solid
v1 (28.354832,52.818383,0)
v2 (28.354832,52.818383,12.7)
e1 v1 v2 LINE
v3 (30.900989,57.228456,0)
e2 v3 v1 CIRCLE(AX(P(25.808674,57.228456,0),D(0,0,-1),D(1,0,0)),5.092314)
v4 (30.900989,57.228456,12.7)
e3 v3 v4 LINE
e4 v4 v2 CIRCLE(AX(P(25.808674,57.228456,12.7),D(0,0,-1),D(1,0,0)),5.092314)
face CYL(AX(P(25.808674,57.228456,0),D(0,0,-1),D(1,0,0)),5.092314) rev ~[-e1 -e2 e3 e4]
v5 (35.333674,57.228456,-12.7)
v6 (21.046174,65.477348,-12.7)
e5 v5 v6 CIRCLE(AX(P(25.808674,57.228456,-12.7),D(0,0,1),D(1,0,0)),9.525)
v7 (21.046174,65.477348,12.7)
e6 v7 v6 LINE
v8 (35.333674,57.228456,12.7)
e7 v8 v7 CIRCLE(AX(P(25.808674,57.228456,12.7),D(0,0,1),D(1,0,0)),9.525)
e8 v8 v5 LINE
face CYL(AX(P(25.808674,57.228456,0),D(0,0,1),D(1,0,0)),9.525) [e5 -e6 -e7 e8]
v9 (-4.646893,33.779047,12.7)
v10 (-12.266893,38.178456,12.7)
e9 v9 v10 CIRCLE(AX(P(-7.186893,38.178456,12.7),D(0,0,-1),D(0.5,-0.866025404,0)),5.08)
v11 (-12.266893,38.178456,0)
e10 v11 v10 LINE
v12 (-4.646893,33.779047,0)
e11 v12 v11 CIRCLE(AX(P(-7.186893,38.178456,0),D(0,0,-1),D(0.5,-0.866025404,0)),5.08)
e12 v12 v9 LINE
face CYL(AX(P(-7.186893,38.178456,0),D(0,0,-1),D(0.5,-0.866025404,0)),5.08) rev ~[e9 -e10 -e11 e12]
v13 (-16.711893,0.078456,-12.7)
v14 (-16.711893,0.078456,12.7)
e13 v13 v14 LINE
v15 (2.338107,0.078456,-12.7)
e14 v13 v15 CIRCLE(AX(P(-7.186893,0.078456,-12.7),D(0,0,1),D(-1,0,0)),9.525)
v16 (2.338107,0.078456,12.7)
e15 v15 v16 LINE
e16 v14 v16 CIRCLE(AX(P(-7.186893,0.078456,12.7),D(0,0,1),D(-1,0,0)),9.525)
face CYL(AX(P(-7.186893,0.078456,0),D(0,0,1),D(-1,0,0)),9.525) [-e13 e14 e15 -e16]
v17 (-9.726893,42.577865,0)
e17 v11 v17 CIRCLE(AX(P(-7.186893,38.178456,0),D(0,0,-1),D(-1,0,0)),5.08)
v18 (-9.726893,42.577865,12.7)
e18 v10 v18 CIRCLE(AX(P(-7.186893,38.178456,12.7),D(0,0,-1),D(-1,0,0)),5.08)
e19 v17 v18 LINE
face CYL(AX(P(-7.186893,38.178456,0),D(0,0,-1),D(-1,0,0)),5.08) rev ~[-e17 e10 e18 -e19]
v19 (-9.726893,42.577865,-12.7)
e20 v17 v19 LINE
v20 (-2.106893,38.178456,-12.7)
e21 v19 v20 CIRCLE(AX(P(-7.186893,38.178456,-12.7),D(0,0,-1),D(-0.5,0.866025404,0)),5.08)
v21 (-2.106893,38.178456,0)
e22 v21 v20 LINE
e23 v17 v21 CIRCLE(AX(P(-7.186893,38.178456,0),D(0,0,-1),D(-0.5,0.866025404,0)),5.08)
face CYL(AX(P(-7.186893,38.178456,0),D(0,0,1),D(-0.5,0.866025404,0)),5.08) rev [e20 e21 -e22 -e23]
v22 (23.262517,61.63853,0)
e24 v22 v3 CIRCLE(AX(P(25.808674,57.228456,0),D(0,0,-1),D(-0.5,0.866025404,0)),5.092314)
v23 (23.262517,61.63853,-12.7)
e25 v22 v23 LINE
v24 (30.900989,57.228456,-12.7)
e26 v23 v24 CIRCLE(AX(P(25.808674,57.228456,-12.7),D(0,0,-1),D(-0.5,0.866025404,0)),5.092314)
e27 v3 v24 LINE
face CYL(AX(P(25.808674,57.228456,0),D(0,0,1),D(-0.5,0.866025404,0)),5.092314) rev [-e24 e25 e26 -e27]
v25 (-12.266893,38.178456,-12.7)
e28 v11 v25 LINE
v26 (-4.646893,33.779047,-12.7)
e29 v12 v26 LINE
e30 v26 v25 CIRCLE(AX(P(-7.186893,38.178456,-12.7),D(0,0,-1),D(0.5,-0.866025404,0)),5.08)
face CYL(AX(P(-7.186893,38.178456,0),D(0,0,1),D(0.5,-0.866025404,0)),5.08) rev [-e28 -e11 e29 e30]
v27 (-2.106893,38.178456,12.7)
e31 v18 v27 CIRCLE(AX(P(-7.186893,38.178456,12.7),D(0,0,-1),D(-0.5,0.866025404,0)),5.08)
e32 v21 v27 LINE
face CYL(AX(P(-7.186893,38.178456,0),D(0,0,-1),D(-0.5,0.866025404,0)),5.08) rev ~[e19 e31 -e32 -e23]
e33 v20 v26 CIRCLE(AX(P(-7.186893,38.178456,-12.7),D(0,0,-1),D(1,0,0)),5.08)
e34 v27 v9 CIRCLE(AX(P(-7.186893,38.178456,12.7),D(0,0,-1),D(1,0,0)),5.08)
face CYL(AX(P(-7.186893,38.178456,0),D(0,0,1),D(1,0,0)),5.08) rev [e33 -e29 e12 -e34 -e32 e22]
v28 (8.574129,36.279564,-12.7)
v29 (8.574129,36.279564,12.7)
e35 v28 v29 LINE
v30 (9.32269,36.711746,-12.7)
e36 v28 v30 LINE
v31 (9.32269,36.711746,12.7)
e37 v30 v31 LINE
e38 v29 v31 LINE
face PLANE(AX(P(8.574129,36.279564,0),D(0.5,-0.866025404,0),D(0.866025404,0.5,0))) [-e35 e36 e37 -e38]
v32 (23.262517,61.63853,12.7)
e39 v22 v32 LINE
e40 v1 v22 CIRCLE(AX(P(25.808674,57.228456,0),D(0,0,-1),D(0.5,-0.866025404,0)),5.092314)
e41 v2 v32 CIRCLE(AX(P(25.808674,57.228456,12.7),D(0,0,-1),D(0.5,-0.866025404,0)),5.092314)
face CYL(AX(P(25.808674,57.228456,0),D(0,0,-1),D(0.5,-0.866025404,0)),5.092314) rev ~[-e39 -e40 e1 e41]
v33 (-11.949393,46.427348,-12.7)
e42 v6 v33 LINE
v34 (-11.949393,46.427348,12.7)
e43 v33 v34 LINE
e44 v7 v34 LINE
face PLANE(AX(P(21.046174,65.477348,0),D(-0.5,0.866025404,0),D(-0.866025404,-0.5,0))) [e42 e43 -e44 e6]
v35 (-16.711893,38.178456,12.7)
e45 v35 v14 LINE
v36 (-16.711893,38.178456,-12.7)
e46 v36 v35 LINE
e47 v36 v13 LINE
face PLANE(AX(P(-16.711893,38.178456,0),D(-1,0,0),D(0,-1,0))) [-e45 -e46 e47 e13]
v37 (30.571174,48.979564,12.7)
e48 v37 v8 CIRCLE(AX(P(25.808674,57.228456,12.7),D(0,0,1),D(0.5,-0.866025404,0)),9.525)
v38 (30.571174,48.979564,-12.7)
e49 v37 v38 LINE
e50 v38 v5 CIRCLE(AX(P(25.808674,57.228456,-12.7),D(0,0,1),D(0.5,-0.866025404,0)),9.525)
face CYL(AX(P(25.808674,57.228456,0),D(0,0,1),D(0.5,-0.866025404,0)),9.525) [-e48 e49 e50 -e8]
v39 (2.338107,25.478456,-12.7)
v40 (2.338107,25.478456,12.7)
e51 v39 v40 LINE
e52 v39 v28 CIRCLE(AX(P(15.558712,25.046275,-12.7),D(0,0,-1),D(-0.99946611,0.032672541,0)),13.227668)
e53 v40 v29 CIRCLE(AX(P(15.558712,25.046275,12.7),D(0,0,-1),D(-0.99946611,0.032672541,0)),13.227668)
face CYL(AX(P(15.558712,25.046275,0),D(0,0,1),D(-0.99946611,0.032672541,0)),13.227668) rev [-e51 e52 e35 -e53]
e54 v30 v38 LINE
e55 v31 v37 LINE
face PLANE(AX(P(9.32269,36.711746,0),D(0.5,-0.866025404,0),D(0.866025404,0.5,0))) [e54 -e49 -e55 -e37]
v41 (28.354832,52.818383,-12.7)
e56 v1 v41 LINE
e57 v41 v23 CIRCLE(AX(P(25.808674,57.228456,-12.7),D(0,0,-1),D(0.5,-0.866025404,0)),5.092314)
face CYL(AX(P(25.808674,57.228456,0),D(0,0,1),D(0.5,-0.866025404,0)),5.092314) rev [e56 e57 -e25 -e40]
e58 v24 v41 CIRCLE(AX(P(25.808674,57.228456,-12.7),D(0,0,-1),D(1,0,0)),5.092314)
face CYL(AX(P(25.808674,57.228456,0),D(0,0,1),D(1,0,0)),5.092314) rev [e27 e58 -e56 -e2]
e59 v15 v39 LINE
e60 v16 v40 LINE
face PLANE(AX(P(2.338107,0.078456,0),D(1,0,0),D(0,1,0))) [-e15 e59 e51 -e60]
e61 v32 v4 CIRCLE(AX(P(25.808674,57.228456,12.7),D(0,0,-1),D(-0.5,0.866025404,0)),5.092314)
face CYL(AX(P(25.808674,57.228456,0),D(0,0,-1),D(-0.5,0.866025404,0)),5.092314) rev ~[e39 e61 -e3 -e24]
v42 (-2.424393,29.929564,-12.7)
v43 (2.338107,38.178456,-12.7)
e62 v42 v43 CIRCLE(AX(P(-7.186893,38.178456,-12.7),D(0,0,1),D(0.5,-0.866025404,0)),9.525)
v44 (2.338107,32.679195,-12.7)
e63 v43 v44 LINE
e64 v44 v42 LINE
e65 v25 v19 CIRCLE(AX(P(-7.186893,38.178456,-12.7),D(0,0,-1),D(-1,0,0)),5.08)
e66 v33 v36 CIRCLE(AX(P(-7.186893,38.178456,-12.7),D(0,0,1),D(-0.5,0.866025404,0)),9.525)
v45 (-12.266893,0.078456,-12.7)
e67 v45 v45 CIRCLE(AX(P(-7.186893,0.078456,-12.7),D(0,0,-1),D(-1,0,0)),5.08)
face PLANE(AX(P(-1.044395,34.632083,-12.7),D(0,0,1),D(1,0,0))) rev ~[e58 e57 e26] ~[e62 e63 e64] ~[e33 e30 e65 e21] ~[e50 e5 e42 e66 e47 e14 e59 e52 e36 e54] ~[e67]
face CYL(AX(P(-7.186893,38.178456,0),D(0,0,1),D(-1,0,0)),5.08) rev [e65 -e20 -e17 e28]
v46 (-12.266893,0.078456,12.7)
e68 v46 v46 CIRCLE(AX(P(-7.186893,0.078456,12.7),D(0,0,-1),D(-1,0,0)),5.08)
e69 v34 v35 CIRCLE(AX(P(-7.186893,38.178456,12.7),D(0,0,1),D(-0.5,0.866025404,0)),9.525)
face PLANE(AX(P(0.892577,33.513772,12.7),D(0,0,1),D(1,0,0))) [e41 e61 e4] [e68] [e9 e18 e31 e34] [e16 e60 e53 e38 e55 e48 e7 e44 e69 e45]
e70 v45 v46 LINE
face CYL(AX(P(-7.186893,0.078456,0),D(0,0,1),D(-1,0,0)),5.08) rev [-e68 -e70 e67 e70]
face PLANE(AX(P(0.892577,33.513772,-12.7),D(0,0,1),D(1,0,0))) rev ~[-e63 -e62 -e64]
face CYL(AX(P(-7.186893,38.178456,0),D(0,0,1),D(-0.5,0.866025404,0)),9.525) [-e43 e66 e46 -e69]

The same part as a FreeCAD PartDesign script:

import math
import FreeCAD as App
import Part
import Sketcher
from FreeCAD import Vector
Q = App.Units.Quantity

doc = App.newDocument("Part")
body = doc.addObject("PartDesign::Body", "Body")

# Sketch on XY plane
sketch1 = body.newObject("Sketcher::SketchObject", "Sketch")
sketch1.AttachmentSupport = (doc.getObject("XY_Plane"), [""])
sketch1.MapMode = "FlatFace"
sketch1.addGeometry(Part.LineSegment(Vector(21, 65.5, 0), Vector(-11.9, 46.4, 0)), False)
sketch1.addGeometry(Part.ArcOfCircle(Part.Circle(Vector(-7.2, 38.2, 0), Vector(0, 0, 1), 9.5), math.radians(120), math.radians(180)), False)
sketch1.addGeometry(Part.LineSegment(Vector(-16.7, 38.2, 0), Vector(-16.7, 0.1, 0)), False)
sketch1.addGeometry(Part.ArcOfCircle(Part.Circle(Vector(-7.2, 0.1, 0), Vector(0, 0, 1), 9.5), math.radians(180), math.radians(360)), False)
sketch1.addGeometry(Part.LineSegment(Vector(2.3, 0.1, 0), Vector(2.3, 25.5, 0)), False)
sketch1.addGeometry(Part.ArcOfCircle(Part.Circle(Vector(15.6, 25, 0), Vector(0, 0, 1), 13.2), math.radians(122), math.radians(178)), False)
sketch1.addGeometry(Part.LineSegment(Vector(8.6, 36.3, 0), Vector(9.3, 36.7, 0)), False)
sketch1.addGeometry(Part.LineSegment(Vector(9.3, 36.7, 0), Vector(30.6, 49, 0)), False)
sketch1.addGeometry(Part.ArcOfCircle(Part.Circle(Vector(25.8, 57.2, 0), Vector(0, 0, 1), 9.5), math.radians(-60), math.radians(0)), False)
sketch1.addGeometry(Part.ArcOfCircle(Part.Circle(Vector(25.8, 57.2, 0), Vector(0, 0, 1), 9.5), math.radians(0), math.radians(120)), False)
sketch1.addGeometry(Part.Circle(Vector(-7.2, 0.1, 0), Vector(0, 0, 1), 5.1), False)
sketch1.addGeometry(Part.ArcOfCircle(Part.Circle(Vector(-7.2, 38.2, 0), Vector(0, 0, 1), 5.1), math.radians(120), math.radians(180)), False)
sketch1.addGeometry(Part.ArcOfCircle(Part.Circle(Vector(-7.2, 38.2, 0), Vector(0, 0, 1), 5.1), math.radians(0), math.radians(120)), False)
sketch1.addGeometry(Part.LineSegment(Vector(-2.1, 38.2, 0), Vector(2.3, 38.2, 0)), False)
sketch1.addGeometry(Part.LineSegment(Vector(2.3, 38.2, 0), Vector(2.3, 32.7, 0)), False)
sketch1.addGeometry(Part.LineSegment(Vector(2.3, 32.7, 0), Vector(-2.4, 29.9, 0)), False)
sketch1.addGeometry(Part.LineSegment(Vector(-2.4, 29.9, 0), Vector(-4.6, 33.8, 0)), False)
sketch1.addGeometry(Part.ArcOfCircle(Part.Circle(Vector(-7.2, 38.2, 0), Vector(0, 0, 1), 5.1), math.radians(180), math.radians(300)), False)
sketch1.addGeometry(Part.ArcOfCircle(Part.Circle(Vector(25.8, 57.2, 0), Vector(0, 0, 1), 5.1), math.radians(120), math.radians(300)), False)
sketch1.addGeometry(Part.ArcOfCircle(Part.Circle(Vector(25.8, 57.2, 0), Vector(0, 0, 1), 5.1), math.radians(0), math.radians(120)), False)
sketch1.addGeometry(Part.ArcOfCircle(Part.Circle(Vector(25.8, 57.2, 0), Vector(0, 0, 1), 5.1), math.radians(-60), math.radians(0)), False)
sketch1.addConstraint(Sketcher.Constraint("Tangent", 0, 2, 1, 1))
sketch1.addConstraint(Sketcher.Constraint("Tangent", 1, 2, 2, 1))
sketch1.addConstraint(Sketcher.Constraint("Tangent", 2, 2, 3, 1))
sketch1.addConstraint(Sketcher.Constraint("Tangent", 3, 2, 4, 1))
sketch1.addConstraint(Sketcher.Constraint("Coincident", 4, 2, 5, 2))
sketch1.addConstraint(Sketcher.Constraint("Coincident", 5, 1, 6, 1))
sketch1.addConstraint(Sketcher.Constraint("Coincident", 6, 2, 7, 1))
sketch1.addConstraint(Sketcher.Constraint("Tangent", 7, 2, 8, 1))
sketch1.addConstraint(Sketcher.Constraint("Tangent", 8, 2, 9, 1))
sketch1.addConstraint(Sketcher.Constraint("Tangent", 9, 2, 0, 1))
sketch1.addConstraint(Sketcher.Constraint("Tangent", 11, 1, 12, 2))
sketch1.addConstraint(Sketcher.Constraint("Coincident", 12, 1, 13, 1))
sketch1.addConstraint(Sketcher.Constraint("Coincident", 13, 2, 14, 1))
sketch1.addConstraint(Sketcher.Constraint("Coincident", 14, 2, 15, 1))
sketch1.addConstraint(Sketcher.Constraint("Coincident", 15, 2, 16, 1))
sketch1.addConstraint(Sketcher.Constraint("Coincident", 16, 2, 17, 2))
sketch1.addConstraint(Sketcher.Constraint("Tangent", 17, 1, 11, 2))
sketch1.addConstraint(Sketcher.Constraint("Tangent", 18, 1, 19, 2))
sketch1.addConstraint(Sketcher.Constraint("Tangent", 19, 1, 20, 2))
sketch1.addConstraint(Sketcher.Constraint("Tangent", 20, 1, 18, 2))
sketch1.addConstraint(Sketcher.Constraint("Vertical", 2))
sketch1.addConstraint(Sketcher.Constraint("Vertical", 4))
sketch1.addConstraint(Sketcher.Constraint("Horizontal", 13))
sketch1.addConstraint(Sketcher.Constraint("Vertical", 14))
sketch1.addConstraint(Sketcher.Constraint("Coincident", 10, 3, 3, 3))
sketch1.addConstraint(Sketcher.Constraint("Coincident", 11, 3, 1, 3))
sketch1.addConstraint(Sketcher.Constraint("Coincident", 18, 3, 8, 3))
sketch1.addConstraint(Sketcher.Constraint("Equal", 1, 3))
sketch1.addConstraint(Sketcher.Constraint("Equal", 3, 8))
sketch1.addConstraint(Sketcher.Constraint("Equal", 8, 9))
sketch1.addConstraint(Sketcher.Constraint("Equal", 10, 11))
sketch1.addConstraint(Sketcher.Constraint("Equal", 11, 12))
sketch1.addConstraint(Sketcher.Constraint("Equal", 12, 17))
sketch1.addConstraint(Sketcher.Constraint("Parallel", 0, 6))
sketch1.addConstraint(Sketcher.Constraint("Parallel", 6, 7))
sketch1.addConstraint(Sketcher.Constraint("Parallel", 7, 15))
sketch1.addConstraint(Sketcher.Constraint("Perpendicular", 15, 16))
sketch1.addConstraint(Sketcher.Constraint("Horizontal", 20, 3, 8, 2))
sketch1.addConstraint(Sketcher.Constraint("Horizontal", 1, 2, 12, 1))
sketch1.addConstraint(Sketcher.Constraint("Horizontal", 13, 2, 17, 1))
sketch1.addConstraint(Sketcher.Constraint("Horizontal", 8, 2, 19, 1))
sketch1.addConstraint(Sketcher.Constraint("Vertical", 4, 2, 13, 2))
sketch1.addConstraint(Sketcher.Constraint("Diameter", 10, Q("0.4 in")))
sketch1.addConstraint(Sketcher.Constraint("DistanceY", 4, 1, 4, 2, Q("1 in")))
sketch1.addConstraint(Sketcher.Constraint("DistanceY", 2, 2, 2, 1, Q("1.5 in")))
sketch1.addConstraint(Sketcher.Constraint("Angle", 0, Q("-150 deg")))
sketch1.addConstraint(Sketcher.Constraint("Radius", 1, Q("0.375 in")))
sketch1.addConstraint(Sketcher.Constraint("Distance", 0, Q("1.5 in")))
sketch1.addConstraint(Sketcher.Constraint("DistanceX", 11, 1, 1, 3, Q("0.1 in")))
sketch1.addConstraint(Sketcher.Constraint("DistanceX", 1, 3, 16, 2, Q("0.1 in")))
sketch1.addConstraint(Sketcher.Constraint("Distance", 16, Q("0.175 in")))
sketch1.addConstraint(Sketcher.Constraint("Radius", 5, Q("13.227668 mm")))
sketch1.addConstraint(Sketcher.Constraint("Radius", 18, Q("5.092314 mm")))
sketch1.addConstraint(Sketcher.Constraint("DistanceY", -1, 1, 0, 2, Q("46.427348 mm")))
sketch1.addConstraint(Sketcher.Constraint("DistanceX", -1, 1, 5, 1, Q("8.574129 mm")))
sketch1.addConstraint(Sketcher.Constraint("DistanceX", -1, 1, 6, 2, Q("9.32269 mm")))
sketch1.addConstraint(Sketcher.Constraint("DistanceY", -1, 1, 18, 1, Q("61.63853 mm")))
sketch1.addConstraint(Sketcher.Constraint("DistanceX", -1, 1, 19, 1, Q("30.900989 mm")))
sketch1.addConstraint(Sketcher.Constraint("DistanceX", -1, 1, 20, 1, Q("28.354832 mm")))
pad1 = body.newObject("PartDesign::Pad", "Pad")
pad1.Profile = sketch1
pad1.Length = Q("1 in")
pad1.Midplane = True

# Sketch on XY plane
sketch2 = body.newObject("Sketcher::SketchObject", "Sketch001")
sketch2.AttachmentSupport = (doc.getObject("XY_Plane"), [""])
sketch2.MapMode = "FlatFace"
sketch2.addGeometry(Part.LineSegment(Vector(-4.6, 33.8, 0), Vector(-2.4, 29.9, 0)), False)
sketch2.addGeometry(Part.ArcOfCircle(Part.Circle(Vector(-7.2, 38.2, 0), Vector(0, 0, 1), 9.5), math.radians(-60), math.radians(0)), False)
sketch2.addGeometry(Part.LineSegment(Vector(2.3, 38.2, 0), Vector(-2.1, 38.2, 0)), False)
sketch2.addGeometry(Part.ArcOfCircle(Part.Circle(Vector(-7.2, 38.2, 0), Vector(0, 0, 1), 5.1), math.radians(-60), math.radians(0)), False)
sketch2.addConstraint(Sketcher.Constraint("Coincident", 0, 2, 1, 1))
sketch2.addConstraint(Sketcher.Constraint("Coincident", 1, 2, 2, 1))
sketch2.addConstraint(Sketcher.Constraint("Coincident", 2, 2, 3, 2))
sketch2.addConstraint(Sketcher.Constraint("Coincident", 3, 1, 0, 1))
sketch2.addConstraint(Sketcher.Constraint("Horizontal", 2))
sketch2.addConstraint(Sketcher.Constraint("Coincident", 3, 3, 1, 3))
sketch2.addConstraint(Sketcher.Constraint("Horizontal", 3, 3, 1, 2))
sketch2.addConstraint(Sketcher.Constraint("Radius", 3, Q("0.2 in")))
sketch2.addConstraint(Sketcher.Constraint("Angle", 0, Q("-60 deg")))
sketch2.addConstraint(Sketcher.Constraint("Radius", 1, Q("0.375 in")))
sketch2.addConstraint(Sketcher.Constraint("DistanceX", 3, 3, 3, 1, Q("0.1 in")))
sketch2.addConstraint(Sketcher.Constraint("DistanceX", 1, 3, -1, 1, Q("7.186893 mm")))
sketch2.addConstraint(Sketcher.Constraint("DistanceY", -1, 1, 1, 3, Q("38.178456 mm")))
pad2 = body.newObject("PartDesign::Pad", "Pad001")
pad2.Profile = sketch2
pad2.Length = Q("1 in")
pad2.Midplane = True

# Sketch on XY plane
sketch3 = body.newObject("Sketcher::SketchObject", "Sketch002")
sketch3.AttachmentSupport = (doc.getObject("XY_Plane"), [""])
sketch3.MapMode = "FlatFace"
sketch3.addGeometry(Part.LineSegment(Vector(-2, 30, 0), Vector(2, 33, 0)), False)
sketch3.addGeometry(Part.LineSegment(Vector(2, 33, 0), Vector(2, 38, 0)), False)
sketch3.addGeometry(Part.ArcOfCircle(Part.Circle(Vector(-7, 38, 0), Vector(0, 0, 1), 10), math.radians(-60), math.radians(0)), False)
sketch3.addConstraint(Sketcher.Constraint("Coincident", 0, 2, 1, 1))
sketch3.addConstraint(Sketcher.Constraint("Tangent", 1, 2, 2, 2))
sketch3.addConstraint(Sketcher.Constraint("Tangent", 2, 1, 0, 1))
sketch3.addConstraint(Sketcher.Constraint("Vertical", 1))
sketch3.addConstraint(Sketcher.Constraint("Angle", 0, Q("30 deg")))
sketch3.addConstraint(Sketcher.Constraint("Radius", 2, Q("0.375 in")))
sketch3.addConstraint(Sketcher.Constraint("DistanceX", 2, 3, -1, 1, Q("7.186893 mm")))
sketch3.addConstraint(Sketcher.Constraint("DistanceY", -1, 1, 2, 3, Q("38.178456 mm")))
pad3 = body.newObject("PartDesign::Pad", "Pad002")
pad3.Profile = sketch3
pad3.Length = Q("1 in")
pad3.Midplane = True

doc.recompute()
